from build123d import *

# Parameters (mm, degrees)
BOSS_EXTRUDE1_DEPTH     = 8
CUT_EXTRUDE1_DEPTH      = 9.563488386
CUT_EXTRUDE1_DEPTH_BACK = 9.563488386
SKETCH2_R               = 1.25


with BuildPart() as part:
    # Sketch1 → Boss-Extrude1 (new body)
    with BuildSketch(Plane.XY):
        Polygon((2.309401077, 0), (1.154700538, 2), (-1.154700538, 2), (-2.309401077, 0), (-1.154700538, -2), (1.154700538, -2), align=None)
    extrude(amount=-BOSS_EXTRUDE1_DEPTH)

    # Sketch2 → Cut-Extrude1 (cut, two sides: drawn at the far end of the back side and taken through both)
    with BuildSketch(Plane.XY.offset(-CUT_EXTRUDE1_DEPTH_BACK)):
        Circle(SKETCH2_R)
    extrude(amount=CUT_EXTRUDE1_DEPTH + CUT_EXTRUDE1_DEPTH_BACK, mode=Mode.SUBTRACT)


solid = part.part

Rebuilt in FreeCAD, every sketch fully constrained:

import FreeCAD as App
import Part
import Sketcher
Q = App.Units.Quantity

doc = App.newDocument("Part")
params = doc.addObject("Spreadsheet::Sheet", "Params")
for row, (alias, value) in enumerate([
    ("pad1_length", "8 mm"),
    ("sketch2_diameter", "2.5 mm"),
], start=1):
    params.set(f"A{row}", alias)
    params.set(f"B{row}", "=" + value)
    params.setAlias(f"B{row}", alias)

body = doc.addObject("PartDesign::Body", "Body")

sketch1 = body.newObject("Sketcher::SketchObject", "Sketch")
sketch1.AttachmentSupport = (doc.getObject("XY_Plane"), [""])
sketch1.MapMode = "FlatFace"
sketch1.addGeometry(Part.LineSegment(App.Vector(2.309401, 0, 0), App.Vector(1.154701, 2, 0)), False)
sketch1.addGeometry(Part.LineSegment(App.Vector(1.154701, 2, 0), App.Vector(-1.154701, 2, 0)), False)
sketch1.addGeometry(Part.LineSegment(App.Vector(-1.154701, 2, 0), App.Vector(-2.309401, 0, 0)), False)
sketch1.addGeometry(Part.LineSegment(App.Vector(-2.309401, 0, 0), App.Vector(-1.154701, -2, 0)), False)
sketch1.addGeometry(Part.LineSegment(App.Vector(-1.154701, -2, 0), App.Vector(1.154701, -2, 0)), False)
sketch1.addGeometry(Part.LineSegment(App.Vector(1.154701, -2, 0), App.Vector(2.309401, 0, 0)), False)
sketch1.addConstraint(Sketcher.Constraint("Coincident", 0, 2, 1, 1))
sketch1.addConstraint(Sketcher.Constraint("Coincident", 1, 2, 2, 1))
sketch1.addConstraint(Sketcher.Constraint("Coincident", 2, 2, 3, 1))
sketch1.addConstraint(Sketcher.Constraint("Coincident", 3, 2, 4, 1))
sketch1.addConstraint(Sketcher.Constraint("Coincident", 4, 2, 5, 1))
sketch1.addConstraint(Sketcher.Constraint("Coincident", 5, 2, 0, 1))
sketch1.addConstraint(Sketcher.Constraint("Horizontal", 1))
sketch1.addConstraint(Sketcher.Constraint("Horizontal", 4))
sketch1.addConstraint(Sketcher.Constraint("Symmetric", 0, 2, 3, 2, -1, 1))
sketch1.addConstraint(Sketcher.Constraint("Symmetric", 2, 2, 5, 2, -1, 1))
sketch1.addConstraint(Sketcher.Constraint("PointOnObject", 2, 2, -1))
sketch1.addConstraint(Sketcher.Constraint("Parallel", 2, 5))
sketch1.addConstraint(Sketcher.Constraint("Vertical", 1, 2, 3, 2))
sketch1.addConstraint(Sketcher.Constraint("Angle", 0, Q("120 deg")))
sketch1.addConstraint(Sketcher.Constraint("DistanceY", -1, 1, 0, 2, Q("2 mm")))
sketch1.addConstraint(Sketcher.Constraint("DistanceX", 1, 2, 1, 1, Q("2.309401 mm")))
pad1 = body.newObject("PartDesign::Pad", "Pad")
pad1.Profile = sketch1
pad1.setExpression("Length", "Params.pad1_length")
pad1.Reversed = True

sketch2 = body.newObject("Sketcher::SketchObject", "Sketch001")
sketch2.AttachmentSupport = (doc.getObject("XY_Plane"), [""])
sketch2.MapMode = "FlatFace"
sketch2.addGeometry(Part.Circle(App.Vector(0, 0, 0), App.Vector(0, 0, 1), 1.25), False)
sketch2.addConstraint(Sketcher.Constraint("Coincident", 0, 3, -1, 1))
sketch2.addConstraint(Sketcher.Constraint("Diameter", 0, Q("2.5 mm")))
sketch2.setExpression("Constraints[1]", "Params.sketch2_diameter")
pocket1 = body.newObject("PartDesign::Pocket", "Pocket")
pocket1.Profile = sketch2
pocket1.Type = "ThroughAll"
pocket1.Midplane = True

doc.recompute()
